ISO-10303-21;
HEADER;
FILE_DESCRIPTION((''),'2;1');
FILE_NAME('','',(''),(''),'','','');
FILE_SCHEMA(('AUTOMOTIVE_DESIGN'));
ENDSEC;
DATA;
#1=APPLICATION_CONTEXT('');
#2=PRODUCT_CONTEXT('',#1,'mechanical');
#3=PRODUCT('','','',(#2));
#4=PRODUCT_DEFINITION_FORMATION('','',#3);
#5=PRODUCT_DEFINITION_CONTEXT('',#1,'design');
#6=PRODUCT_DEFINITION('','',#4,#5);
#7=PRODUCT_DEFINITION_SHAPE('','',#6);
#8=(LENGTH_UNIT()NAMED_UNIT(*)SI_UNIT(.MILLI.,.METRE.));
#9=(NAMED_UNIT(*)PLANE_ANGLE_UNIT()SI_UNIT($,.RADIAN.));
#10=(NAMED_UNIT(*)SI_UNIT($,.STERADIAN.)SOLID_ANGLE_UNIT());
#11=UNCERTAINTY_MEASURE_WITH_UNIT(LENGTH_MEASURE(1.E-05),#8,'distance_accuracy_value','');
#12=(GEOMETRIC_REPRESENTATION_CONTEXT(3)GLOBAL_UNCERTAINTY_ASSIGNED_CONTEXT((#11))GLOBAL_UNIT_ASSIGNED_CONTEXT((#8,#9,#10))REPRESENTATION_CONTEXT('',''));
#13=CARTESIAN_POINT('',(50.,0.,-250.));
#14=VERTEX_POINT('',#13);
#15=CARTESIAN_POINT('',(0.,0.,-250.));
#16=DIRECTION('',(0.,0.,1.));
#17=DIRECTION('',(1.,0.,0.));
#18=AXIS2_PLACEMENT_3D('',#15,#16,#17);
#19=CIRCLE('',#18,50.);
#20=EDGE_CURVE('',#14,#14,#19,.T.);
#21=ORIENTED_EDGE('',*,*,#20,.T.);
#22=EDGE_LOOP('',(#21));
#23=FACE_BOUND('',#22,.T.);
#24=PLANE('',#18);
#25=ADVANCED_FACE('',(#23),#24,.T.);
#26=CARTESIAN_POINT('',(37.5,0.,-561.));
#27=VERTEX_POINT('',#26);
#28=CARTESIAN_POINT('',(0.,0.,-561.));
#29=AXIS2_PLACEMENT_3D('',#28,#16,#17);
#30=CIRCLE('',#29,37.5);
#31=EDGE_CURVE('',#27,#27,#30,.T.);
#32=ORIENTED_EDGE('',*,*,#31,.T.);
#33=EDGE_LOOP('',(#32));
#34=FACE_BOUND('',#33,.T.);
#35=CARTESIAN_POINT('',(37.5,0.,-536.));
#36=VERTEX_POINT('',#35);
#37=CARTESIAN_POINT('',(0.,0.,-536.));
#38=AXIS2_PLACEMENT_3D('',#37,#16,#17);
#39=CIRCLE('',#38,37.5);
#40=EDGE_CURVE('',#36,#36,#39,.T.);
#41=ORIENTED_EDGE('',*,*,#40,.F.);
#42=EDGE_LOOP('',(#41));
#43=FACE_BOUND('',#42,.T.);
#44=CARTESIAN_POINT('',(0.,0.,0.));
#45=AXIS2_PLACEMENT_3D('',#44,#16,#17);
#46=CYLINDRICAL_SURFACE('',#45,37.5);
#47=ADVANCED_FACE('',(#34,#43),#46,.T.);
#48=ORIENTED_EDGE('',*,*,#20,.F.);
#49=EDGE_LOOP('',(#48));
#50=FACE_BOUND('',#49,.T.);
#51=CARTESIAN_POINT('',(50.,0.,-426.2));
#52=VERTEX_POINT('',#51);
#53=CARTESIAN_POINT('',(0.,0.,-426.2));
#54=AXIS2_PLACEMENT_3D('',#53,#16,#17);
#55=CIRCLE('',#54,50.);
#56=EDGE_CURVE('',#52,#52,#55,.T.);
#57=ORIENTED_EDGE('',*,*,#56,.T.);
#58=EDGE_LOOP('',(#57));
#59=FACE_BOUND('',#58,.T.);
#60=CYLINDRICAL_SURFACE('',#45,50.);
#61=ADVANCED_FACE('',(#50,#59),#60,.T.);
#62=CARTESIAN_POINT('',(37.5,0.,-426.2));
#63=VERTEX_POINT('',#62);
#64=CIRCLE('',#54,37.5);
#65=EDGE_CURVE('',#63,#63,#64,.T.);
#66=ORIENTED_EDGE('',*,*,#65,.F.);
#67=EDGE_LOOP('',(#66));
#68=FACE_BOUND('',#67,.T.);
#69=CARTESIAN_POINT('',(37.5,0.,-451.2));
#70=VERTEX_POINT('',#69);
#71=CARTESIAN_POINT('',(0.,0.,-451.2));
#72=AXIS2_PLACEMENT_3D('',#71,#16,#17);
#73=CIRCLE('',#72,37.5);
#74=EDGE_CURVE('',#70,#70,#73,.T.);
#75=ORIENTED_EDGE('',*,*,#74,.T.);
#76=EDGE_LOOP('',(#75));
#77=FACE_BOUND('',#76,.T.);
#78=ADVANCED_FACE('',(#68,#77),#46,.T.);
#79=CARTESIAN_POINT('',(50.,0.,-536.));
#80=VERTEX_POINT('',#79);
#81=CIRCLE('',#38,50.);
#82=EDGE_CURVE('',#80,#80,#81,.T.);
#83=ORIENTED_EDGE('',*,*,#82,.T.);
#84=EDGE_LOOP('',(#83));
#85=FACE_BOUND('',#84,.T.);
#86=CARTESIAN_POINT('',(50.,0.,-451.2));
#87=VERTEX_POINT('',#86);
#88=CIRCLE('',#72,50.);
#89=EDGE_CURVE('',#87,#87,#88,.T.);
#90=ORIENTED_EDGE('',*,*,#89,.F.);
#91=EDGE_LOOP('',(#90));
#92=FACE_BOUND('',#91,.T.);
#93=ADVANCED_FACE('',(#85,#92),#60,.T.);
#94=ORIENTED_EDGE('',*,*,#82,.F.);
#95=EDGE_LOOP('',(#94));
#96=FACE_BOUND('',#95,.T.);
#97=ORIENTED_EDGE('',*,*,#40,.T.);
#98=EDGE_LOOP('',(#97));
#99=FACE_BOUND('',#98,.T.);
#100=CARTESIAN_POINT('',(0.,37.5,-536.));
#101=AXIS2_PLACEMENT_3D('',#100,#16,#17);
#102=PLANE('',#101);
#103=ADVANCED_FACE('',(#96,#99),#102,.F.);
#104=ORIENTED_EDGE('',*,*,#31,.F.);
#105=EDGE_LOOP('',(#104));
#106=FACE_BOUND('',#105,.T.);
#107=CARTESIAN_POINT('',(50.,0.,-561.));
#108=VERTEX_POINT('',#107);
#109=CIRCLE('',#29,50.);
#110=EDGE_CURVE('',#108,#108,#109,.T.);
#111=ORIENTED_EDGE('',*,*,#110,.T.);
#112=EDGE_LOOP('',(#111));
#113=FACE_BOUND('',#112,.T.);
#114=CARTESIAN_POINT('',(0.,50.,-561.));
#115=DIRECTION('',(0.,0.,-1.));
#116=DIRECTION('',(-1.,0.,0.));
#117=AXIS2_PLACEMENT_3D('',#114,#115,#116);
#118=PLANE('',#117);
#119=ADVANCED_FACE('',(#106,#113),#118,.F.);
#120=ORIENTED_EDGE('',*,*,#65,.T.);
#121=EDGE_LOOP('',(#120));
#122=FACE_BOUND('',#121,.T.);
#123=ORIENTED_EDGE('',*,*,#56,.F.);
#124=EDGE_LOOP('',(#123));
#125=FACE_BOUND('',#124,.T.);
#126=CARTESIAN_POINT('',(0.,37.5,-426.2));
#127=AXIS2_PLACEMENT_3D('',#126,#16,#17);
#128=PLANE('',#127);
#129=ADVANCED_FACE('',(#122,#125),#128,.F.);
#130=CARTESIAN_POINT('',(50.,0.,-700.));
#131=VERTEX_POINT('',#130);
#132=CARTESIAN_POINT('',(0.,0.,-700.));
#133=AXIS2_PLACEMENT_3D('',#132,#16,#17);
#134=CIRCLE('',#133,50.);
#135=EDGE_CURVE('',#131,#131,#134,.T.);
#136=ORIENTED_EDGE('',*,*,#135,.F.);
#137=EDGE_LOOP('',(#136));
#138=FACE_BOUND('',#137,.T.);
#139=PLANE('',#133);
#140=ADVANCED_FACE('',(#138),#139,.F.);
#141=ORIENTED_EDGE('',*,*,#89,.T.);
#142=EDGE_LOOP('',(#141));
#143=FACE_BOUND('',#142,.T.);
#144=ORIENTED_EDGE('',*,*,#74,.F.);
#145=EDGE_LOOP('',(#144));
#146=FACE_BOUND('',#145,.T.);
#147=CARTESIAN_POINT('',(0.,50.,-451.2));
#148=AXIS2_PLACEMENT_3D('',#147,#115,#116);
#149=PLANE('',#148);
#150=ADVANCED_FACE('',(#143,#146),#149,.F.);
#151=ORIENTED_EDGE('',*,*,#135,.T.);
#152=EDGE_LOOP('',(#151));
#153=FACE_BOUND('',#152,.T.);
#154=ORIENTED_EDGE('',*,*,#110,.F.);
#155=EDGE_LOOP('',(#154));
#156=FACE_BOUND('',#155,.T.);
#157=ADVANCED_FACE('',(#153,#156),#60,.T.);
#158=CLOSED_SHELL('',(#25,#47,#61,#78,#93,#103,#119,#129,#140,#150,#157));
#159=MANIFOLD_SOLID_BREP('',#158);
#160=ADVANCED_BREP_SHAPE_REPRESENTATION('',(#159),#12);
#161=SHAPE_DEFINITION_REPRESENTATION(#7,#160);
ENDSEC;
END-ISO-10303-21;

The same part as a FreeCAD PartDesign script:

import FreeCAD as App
import Part
import Sketcher
from FreeCAD import Vector
Q = App.Units.Quantity

doc = App.newDocument("Part")
body = doc.addObject("PartDesign::Body", "Body")

sketch1 = body.newObject("Sketcher::SketchObject", "Sketch")
sketch1.AttachmentSupport = (doc.getObject("YZ_Plane"), [""])
sketch1.MapMode = "FlatFace"
sketch1.addGeometry(Part.LineSegment(Vector(50, 0, 0), Vector(0, 0, 0)), False)
sketch1.addGeometry(Part.LineSegment(Vector(0, 0, 0), Vector(0, -700, 0)), False)
sketch1.addGeometry(Part.LineSegment(Vector(0, -700, 0), Vector(50, -700, 0)), False)
sketch1.addGeometry(Part.LineSegment(Vector(50, -700, 0), Vector(50, -561, 0)), False)
sketch1.addGeometry(Part.LineSegment(Vector(50, -561, 0), Vector(38, -561, 0)), False)
sketch1.addGeometry(Part.LineSegment(Vector(38, -561, 0), Vector(38, -536, 0)), False)
sketch1.addGeometry(Part.LineSegment(Vector(38, -536, 0), Vector(50, -536, 0)), False)
sketch1.addGeometry(Part.LineSegment(Vector(50, -536, 0), Vector(50, -451, 0)), False)
sketch1.addGeometry(Part.LineSegment(Vector(50, -451, 0), Vector(38, -451, 0)), False)
sketch1.addGeometry(Part.LineSegment(Vector(38, -451, 0), Vector(38, -426, 0)), False)
sketch1.addGeometry(Part.LineSegment(Vector(38, -426, 0), Vector(50, -426, 0)), False)
sketch1.addGeometry(Part.LineSegment(Vector(50, -426, 0), Vector(50, 0, 0)), False)
sketch1.addConstraint(Sketcher.Constraint("Coincident", 0, 2, 1, 1))
sketch1.addConstraint(Sketcher.Constraint("Coincident", 1, 2, 2, 1))
sketch1.addConstraint(Sketcher.Constraint("Coincident", 2, 2, 3, 1))
sketch1.addConstraint(Sketcher.Constraint("Coincident", 3, 2, 4, 1))
sketch1.addConstraint(Sketcher.Constraint("Coincident", 4, 2, 5, 1))
sketch1.addConstraint(Sketcher.Constraint("Coincident", 5, 2, 6, 1))
sketch1.addConstraint(Sketcher.Constraint("Coincident", 6, 2, 7, 1))
sketch1.addConstraint(Sketcher.Constraint("Coincident", 7, 2, 8, 1))
sketch1.addConstraint(Sketcher.Constraint("Coincident", 8, 2, 9, 1))
sketch1.addConstraint(Sketcher.Constraint("Coincident", 9, 2, 10, 1))
sketch1.addConstraint(Sketcher.Constraint("Coincident", 10, 2, 11, 1))
sketch1.addConstraint(Sketcher.Constraint("Coincident", 11, 2, 0, 1))
sketch1.addConstraint(Sketcher.Constraint("Horizontal", 0))
sketch1.addConstraint(Sketcher.Constraint("Vertical", 1))
sketch1.addConstraint(Sketcher.Constraint("Horizontal", 2))
sketch1.addConstraint(Sketcher.Constraint("Vertical", 3))
sketch1.addConstraint(Sketcher.Constraint("Horizontal", 4))
sketch1.addConstraint(Sketcher.Constraint("Vertical", 5))
sketch1.addConstraint(Sketcher.Constraint("Horizontal", 6))
sketch1.addConstraint(Sketcher.Constraint("Vertical", 7))
sketch1.addConstraint(Sketcher.Constraint("Horizontal", 8))
sketch1.addConstraint(Sketcher.Constraint("Vertical", 9))
sketch1.addConstraint(Sketcher.Constraint("Horizontal", 10))
sketch1.addConstraint(Sketcher.Constraint("Vertical", 11))
sketch1.addConstraint(Sketcher.Constraint("Coincident", 0, 2, -1, 1))
sketch1.addConstraint(Sketcher.Constraint("Vertical", 3, 2, 6, 2))
sketch1.addConstraint(Sketcher.Constraint("Vertical", 5, 2, 8, 2))
sketch1.addConstraint(Sketcher.Constraint("Vertical", 7, 2, 10, 2))
sketch1.addConstraint(Sketcher.Constraint("Equal", 5, 9))
sketch1.addConstraint(Sketcher.Constraint("DistanceX", 0, 2, 0, 1, Q("50 mm")))
sketch1.addConstraint(Sketcher.Constraint("DistanceY", 1, 2, 1, 1, Q("700 mm")))
sketch1.addConstraint(Sketcher.Constraint("DistanceY", 3, 1, 3, 2, Q("139 mm")))
sketch1.addConstraint(Sketcher.Constraint("DistanceY", 5, 1, 5, 2, Q("25 mm")))
sketch1.addConstraint(Sketcher.Constraint("DistanceX", 4, 2, 4, 1, Q("12.5 mm")))
sketch1.addConstraint(Sketcher.Constraint("DistanceY", 7, 1, 7, 2, Q("84.8 mm")))
revolution = body.newObject("PartDesign::Revolution", "Revolution")
revolution.Profile = sketch1
revolution.ReferenceAxis = (sketch1, ["V_Axis"])
revolution.Angle = 360

sketch2 = body.newObject("Sketcher::SketchObject", "Sketch001")
sketch2.AttachmentSupport = (doc.getObject("XY_Plane"), [""])
sketch2.MapMode = "FlatFace"
sketch2.AttachmentOffset = App.Placement(Vector(0, 0, -250), App.Rotation())
sketch2.addGeometry(Part.Circle(Vector(0, 0, 0), Vector(0, 0, 1), 50), False)
sketch2.addConstraint(Sketcher.Constraint("Coincident", 0, 3, -1, 1))
sketch2.addConstraint(Sketcher.Constraint("Diameter", 0, Q("100 mm")))
pocket1 = body.newObject("PartDesign::Pocket", "Pocket")
pocket1.Profile = sketch2
pocket1.Length = 250
pocket1.Reversed = True

doc.recompute()
